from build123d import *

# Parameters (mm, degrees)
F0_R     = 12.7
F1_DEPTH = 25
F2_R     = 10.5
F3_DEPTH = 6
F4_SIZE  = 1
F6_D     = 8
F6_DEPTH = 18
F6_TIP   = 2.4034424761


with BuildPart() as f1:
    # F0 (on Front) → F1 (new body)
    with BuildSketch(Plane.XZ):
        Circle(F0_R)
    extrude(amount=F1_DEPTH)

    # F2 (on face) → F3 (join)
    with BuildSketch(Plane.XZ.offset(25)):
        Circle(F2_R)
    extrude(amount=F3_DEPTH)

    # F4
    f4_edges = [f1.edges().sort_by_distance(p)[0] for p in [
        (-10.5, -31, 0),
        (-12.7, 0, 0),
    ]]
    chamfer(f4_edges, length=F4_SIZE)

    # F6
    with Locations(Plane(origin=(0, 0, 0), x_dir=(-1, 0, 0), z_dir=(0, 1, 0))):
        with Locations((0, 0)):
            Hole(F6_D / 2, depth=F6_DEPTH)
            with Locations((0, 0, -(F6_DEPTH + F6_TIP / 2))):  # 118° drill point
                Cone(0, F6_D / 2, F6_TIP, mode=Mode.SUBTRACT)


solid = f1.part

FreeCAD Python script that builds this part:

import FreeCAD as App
import Part
import Sketcher

V = App.Vector


def edges_at(feature, points):
    """Names of the edges that pass closest to the given points."""
    edges = feature.Shape.Edges
    near = lambda p: min(range(len(edges)), key=lambda i: edges[i].distToShape(Part.Vertex(*p))[0])
    return sorted({f"Edge{near(p) + 1}" for p in points})

doc = App.newDocument("Part")
params = doc.addObject("Spreadsheet::Sheet", "Params")
for row, (alias, value) in enumerate([
    ("sketch1_diameter", "25.4 mm"),
    ("pad1_length", "25 mm"),
    ("sketch2_diameter", "21 mm"),
    ("pad2_length", "6 mm"),
    ("chamfer_size", "1 mm"),
    ("sketch3_diameter", "8 mm"),
    ("hole_diameter", "8 mm"),
    ("hole_depth", "18 mm"),
], start=1):
    params.set(f"A{row}", alias)
    params.set(f"B{row}", "=" + value)
    params.setAlias(f"B{row}", alias)

body = doc.addObject("PartDesign::Body", "Body")

# Sketch on XZ plane
sketch1 = body.newObject("Sketcher::SketchObject", "Sketch")
sketch1.AttachmentSupport = (doc.getObject("XZ_Plane"), [""])
sketch1.MapMode = "FlatFace"
sketch1.addGeometry(Part.Circle(V(0, 0, 0), V(0, 0, 1), 12.7), False)
sketch1.addConstraint(Sketcher.Constraint("Coincident", 0, 3, -1, 1))
sketch1.addConstraint(Sketcher.Constraint("Diameter", 0, 25.4))
sketch1.setExpression("Constraints[1]", "Params.sketch1_diameter")
pad1 = body.newObject("PartDesign::Pad", "Pad")
pad1.Profile = sketch1
pad1.setExpression("Length", "Params.pad1_length")

# Sketch on XZ plane
sketch2 = body.newObject("Sketcher::SketchObject", "Sketch001")
sketch2.AttachmentSupport = (doc.getObject("XZ_Plane"), [""])
sketch2.MapMode = "FlatFace"
sketch2.AttachmentOffset = App.Placement(V(0, 0, 25), App.Rotation())
sketch2.addGeometry(Part.Circle(V(0, 0, 0), V(0, 0, 1), 10.5), False)
sketch2.addConstraint(Sketcher.Constraint("Coincident", 0, 3, -1, 1))
sketch2.addConstraint(Sketcher.Constraint("Diameter", 0, 21.0))
sketch2.setExpression("Constraints[1]", "Params.sketch2_diameter")
pad2 = body.newObject("PartDesign::Pad", "Pad001")
pad2.Profile = sketch2
pad2.setExpression("Length", "Params.pad2_length")
doc.recompute()

chamfer = body.newObject("PartDesign::Chamfer", "Chamfer")
chamfer.Base = (pad2, edges_at(pad2, [(-10.5, -31, 0), (-12.7, 0, 0)]))
chamfer.setExpression("Size", "Params.chamfer_size")

# Sketch on XZ plane
sketch3 = body.newObject("Sketcher::SketchObject", "Sketch002")
sketch3.AttachmentSupport = (doc.getObject("XZ_Plane"), [""])
sketch3.MapMode = "FlatFace"
sketch3.addGeometry(Part.Circle(V(0, 0, 0), V(0, 0, 1), 4), False)
sketch3.addConstraint(Sketcher.Constraint("Coincident", 0, 3, -1, 1))
sketch3.addConstraint(Sketcher.Constraint("Diameter", 0, 8.0))
sketch3.setExpression("Constraints[1]", "Params.sketch3_diameter")
doc.recompute()
hole = body.newObject("PartDesign::Hole", "Hole")
hole.Profile = sketch3
hole.ThreadType = "None"
hole.setExpression("Diameter", "Params.hole_diameter")
hole.DepthType = "Dimension"
hole.setExpression("Depth", "Params.hole_depth")
hole.DrillPoint = "Angled"
hole.DrillPointAngle = 118
hole.Reversed = True

doc.recompute()
